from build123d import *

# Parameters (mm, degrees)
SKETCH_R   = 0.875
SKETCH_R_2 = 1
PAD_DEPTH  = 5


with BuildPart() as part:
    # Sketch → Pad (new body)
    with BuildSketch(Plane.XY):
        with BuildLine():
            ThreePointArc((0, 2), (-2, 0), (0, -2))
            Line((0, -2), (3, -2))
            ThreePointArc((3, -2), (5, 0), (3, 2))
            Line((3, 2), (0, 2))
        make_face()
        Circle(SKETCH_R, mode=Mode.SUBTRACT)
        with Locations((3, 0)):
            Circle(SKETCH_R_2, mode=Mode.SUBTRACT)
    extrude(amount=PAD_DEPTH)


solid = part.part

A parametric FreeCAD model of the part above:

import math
import FreeCAD as App
import Part
import Sketcher
from FreeCAD import Vector

doc = App.newDocument("Part")
body = doc.addObject("PartDesign::Body", "Body")

# Sketch on XY plane
sketch1 = body.newObject("Sketcher::SketchObject", "Sketch")
sketch1.AttachmentSupport = (doc.getObject("XY_Plane"), [""])
sketch1.MapMode = "FlatFace"
sketch1.addGeometry(Part.ArcOfCircle(Part.Circle(Vector(0, 0, 0), Vector(0, 0, 1), 2), math.radians(90), math.radians(270)), False)
sketch1.addGeometry(Part.LineSegment(Vector(0, -2, 0), Vector(3, -2, 0)), False)
sketch1.addGeometry(Part.ArcOfCircle(Part.Circle(Vector(3, 0, 0), Vector(0, 0, 1), 2), math.radians(-90), math.radians(90)), False)
sketch1.addGeometry(Part.LineSegment(Vector(3, 2, 0), Vector(0, 2, 0)), False)
sketch1.addGeometry(Part.Circle(Vector(0, 0, 0), Vector(0, 0, 1), 0.9), False)
sketch1.addGeometry(Part.Circle(Vector(3, 0, 0), Vector(0, 0, 1), 1), False)
sketch1.addConstraint(Sketcher.Constraint("Tangent", 0, 2, 1, 1))
sketch1.addConstraint(Sketcher.Constraint("Tangent", 1, 2, 2, 1))
sketch1.addConstraint(Sketcher.Constraint("Tangent", 2, 2, 3, 1))
sketch1.addConstraint(Sketcher.Constraint("Tangent", 3, 2, 0, 1))
sketch1.addConstraint(Sketcher.Constraint("Horizontal", 1))
sketch1.addConstraint(Sketcher.Constraint("Horizontal", 3))
sketch1.addConstraint(Sketcher.Constraint("Coincident", 0, 3, -1, 1))
sketch1.addConstraint(Sketcher.Constraint("Coincident", 4, 3, -1, 1))
sketch1.addConstraint(Sketcher.Constraint("Coincident", 5, 3, 2, 3))
sketch1.addConstraint(Sketcher.Constraint("Diameter", 5, 2.0))
sketch1.addConstraint(Sketcher.Constraint("Radius", 0, 2.0))
sketch1.addConstraint(Sketcher.Constraint("Diameter", 4, 1.75))
sketch1.addConstraint(Sketcher.Constraint("DistanceX", 1, 1, 1, 2, 3.0))
pad1 = body.newObject("PartDesign::Pad", "Pad")
pad1.Profile = sketch1
pad1.Length = 5

doc.recompute()
